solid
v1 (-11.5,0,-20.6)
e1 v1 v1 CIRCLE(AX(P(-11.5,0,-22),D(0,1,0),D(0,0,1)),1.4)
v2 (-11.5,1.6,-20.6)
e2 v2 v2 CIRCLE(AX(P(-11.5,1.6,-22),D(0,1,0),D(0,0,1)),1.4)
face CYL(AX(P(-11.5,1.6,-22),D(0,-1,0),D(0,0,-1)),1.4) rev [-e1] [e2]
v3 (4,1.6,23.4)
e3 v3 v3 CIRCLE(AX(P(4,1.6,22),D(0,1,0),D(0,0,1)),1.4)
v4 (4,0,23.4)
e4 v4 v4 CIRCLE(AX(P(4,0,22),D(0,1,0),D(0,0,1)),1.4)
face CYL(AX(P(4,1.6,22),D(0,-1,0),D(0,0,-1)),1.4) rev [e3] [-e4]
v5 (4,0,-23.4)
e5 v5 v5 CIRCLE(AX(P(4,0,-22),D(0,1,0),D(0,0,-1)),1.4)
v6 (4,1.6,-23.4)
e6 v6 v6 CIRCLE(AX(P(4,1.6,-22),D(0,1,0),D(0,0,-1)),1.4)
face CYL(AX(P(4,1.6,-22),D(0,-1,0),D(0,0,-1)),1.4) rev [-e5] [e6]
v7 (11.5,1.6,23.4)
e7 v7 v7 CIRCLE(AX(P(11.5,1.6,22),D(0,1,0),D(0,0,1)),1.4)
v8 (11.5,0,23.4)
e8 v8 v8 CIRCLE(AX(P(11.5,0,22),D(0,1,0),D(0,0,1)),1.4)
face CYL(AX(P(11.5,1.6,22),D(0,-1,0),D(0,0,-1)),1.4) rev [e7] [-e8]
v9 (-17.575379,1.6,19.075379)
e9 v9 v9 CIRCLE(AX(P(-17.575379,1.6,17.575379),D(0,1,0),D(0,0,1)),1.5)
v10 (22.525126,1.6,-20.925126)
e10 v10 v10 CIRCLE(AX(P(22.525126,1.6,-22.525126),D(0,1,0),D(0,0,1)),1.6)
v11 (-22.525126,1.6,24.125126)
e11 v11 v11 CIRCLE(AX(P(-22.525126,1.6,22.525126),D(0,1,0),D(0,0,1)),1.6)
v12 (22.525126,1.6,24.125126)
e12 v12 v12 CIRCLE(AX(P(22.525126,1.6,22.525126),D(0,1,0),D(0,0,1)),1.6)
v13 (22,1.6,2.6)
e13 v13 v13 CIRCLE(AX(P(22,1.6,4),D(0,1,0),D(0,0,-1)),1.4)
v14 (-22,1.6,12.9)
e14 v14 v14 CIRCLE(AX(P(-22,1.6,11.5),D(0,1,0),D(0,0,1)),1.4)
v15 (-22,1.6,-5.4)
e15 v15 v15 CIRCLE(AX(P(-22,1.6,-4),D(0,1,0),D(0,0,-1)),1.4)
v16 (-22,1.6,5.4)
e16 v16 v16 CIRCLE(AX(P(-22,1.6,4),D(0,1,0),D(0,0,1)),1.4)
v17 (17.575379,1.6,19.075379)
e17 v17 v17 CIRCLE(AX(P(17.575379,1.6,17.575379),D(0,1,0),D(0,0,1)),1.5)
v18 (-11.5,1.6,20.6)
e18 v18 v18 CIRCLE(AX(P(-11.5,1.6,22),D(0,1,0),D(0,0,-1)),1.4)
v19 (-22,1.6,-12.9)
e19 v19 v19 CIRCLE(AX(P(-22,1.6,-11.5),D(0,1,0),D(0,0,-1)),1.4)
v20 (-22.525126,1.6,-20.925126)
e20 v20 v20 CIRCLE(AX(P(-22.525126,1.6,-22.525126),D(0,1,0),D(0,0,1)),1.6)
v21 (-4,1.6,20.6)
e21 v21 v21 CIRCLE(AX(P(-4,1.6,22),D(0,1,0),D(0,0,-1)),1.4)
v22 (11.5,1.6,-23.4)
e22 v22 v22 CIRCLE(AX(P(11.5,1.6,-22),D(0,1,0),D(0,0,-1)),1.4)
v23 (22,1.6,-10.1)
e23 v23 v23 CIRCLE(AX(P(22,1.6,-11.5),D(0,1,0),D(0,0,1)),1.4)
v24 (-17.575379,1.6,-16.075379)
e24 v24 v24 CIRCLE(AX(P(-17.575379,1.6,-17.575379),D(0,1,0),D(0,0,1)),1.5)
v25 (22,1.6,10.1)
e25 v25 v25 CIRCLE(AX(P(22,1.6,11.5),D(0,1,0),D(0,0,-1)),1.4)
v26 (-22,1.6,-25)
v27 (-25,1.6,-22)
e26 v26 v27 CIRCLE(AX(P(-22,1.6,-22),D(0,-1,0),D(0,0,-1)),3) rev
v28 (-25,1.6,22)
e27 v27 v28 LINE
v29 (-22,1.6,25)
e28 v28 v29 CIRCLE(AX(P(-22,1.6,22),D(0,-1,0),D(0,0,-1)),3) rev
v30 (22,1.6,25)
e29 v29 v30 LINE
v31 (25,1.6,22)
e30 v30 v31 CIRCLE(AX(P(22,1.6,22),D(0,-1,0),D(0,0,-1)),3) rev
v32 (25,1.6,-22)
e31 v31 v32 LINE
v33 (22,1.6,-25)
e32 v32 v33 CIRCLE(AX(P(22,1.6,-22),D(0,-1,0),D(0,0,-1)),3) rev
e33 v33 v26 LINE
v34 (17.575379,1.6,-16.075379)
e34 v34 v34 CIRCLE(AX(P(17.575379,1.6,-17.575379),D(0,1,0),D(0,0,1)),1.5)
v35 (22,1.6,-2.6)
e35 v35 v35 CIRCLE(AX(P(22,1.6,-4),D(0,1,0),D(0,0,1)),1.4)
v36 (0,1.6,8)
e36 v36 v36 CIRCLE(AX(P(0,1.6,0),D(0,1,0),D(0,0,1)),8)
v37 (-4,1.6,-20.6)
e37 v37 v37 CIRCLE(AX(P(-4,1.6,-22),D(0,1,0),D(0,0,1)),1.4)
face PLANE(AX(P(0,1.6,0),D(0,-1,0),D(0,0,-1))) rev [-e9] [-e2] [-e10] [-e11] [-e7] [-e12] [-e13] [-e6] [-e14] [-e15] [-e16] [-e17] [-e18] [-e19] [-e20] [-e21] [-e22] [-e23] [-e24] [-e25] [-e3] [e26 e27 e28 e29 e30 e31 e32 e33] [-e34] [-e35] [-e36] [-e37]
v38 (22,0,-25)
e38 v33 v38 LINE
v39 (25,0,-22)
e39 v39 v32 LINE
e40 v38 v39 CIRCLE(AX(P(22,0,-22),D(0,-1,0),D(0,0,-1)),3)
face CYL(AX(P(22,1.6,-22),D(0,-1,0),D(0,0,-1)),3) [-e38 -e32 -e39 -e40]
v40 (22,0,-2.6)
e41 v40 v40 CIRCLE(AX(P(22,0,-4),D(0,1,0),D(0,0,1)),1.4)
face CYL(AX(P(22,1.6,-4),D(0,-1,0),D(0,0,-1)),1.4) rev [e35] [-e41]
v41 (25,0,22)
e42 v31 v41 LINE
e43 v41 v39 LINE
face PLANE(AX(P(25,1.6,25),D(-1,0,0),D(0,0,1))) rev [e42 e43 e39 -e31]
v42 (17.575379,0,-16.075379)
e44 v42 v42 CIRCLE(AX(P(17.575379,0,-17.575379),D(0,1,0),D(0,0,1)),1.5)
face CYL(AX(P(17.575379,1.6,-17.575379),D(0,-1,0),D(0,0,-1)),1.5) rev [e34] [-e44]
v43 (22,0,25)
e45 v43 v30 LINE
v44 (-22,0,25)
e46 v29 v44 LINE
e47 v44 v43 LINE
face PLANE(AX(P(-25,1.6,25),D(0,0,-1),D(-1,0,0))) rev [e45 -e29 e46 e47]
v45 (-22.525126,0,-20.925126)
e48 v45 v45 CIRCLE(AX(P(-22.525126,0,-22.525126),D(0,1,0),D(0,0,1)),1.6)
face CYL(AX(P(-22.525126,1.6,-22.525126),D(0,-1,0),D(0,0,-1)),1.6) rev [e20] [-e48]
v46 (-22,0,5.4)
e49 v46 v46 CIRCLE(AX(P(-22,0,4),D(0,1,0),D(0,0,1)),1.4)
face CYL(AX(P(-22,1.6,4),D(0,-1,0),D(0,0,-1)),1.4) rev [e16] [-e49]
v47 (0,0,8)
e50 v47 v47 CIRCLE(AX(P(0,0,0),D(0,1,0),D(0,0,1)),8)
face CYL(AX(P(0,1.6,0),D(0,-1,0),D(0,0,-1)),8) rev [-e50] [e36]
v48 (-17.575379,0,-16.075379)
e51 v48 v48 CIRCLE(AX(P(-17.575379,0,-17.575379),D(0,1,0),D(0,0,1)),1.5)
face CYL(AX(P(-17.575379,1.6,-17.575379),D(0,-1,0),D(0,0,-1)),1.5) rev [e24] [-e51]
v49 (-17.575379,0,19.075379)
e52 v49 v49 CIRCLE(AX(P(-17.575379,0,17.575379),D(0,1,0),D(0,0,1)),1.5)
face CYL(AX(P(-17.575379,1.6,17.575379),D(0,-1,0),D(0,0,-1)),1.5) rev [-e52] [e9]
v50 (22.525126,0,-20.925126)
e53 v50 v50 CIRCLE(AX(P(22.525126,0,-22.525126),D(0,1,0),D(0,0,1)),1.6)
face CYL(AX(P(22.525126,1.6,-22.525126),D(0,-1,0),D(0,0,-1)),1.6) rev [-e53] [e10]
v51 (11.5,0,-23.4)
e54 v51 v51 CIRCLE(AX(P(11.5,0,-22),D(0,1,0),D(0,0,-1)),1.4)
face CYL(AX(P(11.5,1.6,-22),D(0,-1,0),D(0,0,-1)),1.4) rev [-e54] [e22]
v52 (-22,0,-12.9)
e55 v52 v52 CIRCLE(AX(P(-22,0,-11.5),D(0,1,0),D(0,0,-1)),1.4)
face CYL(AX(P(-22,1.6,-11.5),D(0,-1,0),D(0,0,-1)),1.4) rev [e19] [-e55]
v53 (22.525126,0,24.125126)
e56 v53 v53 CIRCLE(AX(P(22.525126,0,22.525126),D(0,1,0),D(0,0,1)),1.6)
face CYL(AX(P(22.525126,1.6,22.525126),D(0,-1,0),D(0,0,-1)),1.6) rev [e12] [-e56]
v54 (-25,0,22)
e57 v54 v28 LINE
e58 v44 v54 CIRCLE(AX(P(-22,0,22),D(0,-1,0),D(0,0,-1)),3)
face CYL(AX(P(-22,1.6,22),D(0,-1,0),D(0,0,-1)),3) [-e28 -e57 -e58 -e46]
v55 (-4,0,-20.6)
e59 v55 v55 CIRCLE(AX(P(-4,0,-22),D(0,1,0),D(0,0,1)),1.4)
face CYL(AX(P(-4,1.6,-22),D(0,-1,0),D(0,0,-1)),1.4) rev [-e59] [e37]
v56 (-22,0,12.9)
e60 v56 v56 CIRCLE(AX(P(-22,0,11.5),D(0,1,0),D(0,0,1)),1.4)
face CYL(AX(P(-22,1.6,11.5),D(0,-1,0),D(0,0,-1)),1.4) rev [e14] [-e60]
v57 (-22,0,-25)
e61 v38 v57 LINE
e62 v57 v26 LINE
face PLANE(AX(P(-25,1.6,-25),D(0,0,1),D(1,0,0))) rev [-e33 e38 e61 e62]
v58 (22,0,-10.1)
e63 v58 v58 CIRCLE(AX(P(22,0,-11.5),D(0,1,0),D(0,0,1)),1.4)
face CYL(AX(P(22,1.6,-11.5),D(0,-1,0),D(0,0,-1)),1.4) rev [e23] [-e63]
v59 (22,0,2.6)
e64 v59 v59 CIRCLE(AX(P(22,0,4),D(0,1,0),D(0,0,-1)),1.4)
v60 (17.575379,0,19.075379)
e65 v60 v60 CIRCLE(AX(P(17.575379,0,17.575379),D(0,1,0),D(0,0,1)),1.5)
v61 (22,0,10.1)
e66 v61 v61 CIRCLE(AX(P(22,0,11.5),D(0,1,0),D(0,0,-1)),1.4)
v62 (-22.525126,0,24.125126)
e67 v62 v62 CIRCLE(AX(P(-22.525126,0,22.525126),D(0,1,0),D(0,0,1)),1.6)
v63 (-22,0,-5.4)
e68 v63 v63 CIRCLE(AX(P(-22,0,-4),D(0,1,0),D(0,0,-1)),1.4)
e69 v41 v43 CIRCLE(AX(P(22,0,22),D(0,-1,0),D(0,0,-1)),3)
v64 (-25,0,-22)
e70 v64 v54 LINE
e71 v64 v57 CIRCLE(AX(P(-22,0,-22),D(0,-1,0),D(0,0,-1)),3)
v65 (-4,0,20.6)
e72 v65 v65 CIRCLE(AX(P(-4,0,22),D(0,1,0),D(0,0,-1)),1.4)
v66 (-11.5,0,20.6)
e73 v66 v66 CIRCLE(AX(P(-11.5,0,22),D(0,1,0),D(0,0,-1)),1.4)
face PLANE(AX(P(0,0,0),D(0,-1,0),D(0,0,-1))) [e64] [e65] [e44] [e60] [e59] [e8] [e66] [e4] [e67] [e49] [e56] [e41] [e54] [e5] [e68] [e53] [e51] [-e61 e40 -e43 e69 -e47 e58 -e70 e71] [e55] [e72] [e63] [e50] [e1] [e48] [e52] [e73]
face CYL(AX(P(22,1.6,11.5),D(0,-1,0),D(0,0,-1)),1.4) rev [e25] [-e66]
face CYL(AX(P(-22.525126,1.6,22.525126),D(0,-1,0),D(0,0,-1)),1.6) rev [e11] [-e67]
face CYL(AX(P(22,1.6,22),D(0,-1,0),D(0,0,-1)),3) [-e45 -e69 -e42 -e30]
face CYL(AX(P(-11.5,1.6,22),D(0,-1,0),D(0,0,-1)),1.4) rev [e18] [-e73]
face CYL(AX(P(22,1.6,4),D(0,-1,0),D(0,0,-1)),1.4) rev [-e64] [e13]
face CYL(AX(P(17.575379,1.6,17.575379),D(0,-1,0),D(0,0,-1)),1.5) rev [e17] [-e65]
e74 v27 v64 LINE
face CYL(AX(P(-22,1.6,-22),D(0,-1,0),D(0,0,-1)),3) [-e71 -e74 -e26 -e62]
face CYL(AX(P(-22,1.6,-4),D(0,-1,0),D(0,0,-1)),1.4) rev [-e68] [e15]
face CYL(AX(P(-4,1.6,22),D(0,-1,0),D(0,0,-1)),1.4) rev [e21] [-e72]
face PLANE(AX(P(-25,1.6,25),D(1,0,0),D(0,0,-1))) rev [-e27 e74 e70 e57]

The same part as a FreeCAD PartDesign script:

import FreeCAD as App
import Part
import Sketcher
Q = App.Units.Quantity


def edges_at(feature, points):
    """Names of the edges that pass closest to the given points."""
    edges = feature.Shape.Edges
    near = lambda p: min(range(len(edges)), key=lambda i: edges[i].distToShape(Part.Vertex(*p))[0])
    return sorted({f"Edge{near(p) + 1}" for p in points})


def add_polygon(sketch, points):
    """Adds a closed chain of lines whose ends are joined by coincident constraints."""
    first, n = sketch.GeometryCount, len(points)
    for a, b in zip(points, points[1:] + points[:1]):
        sketch.addGeometry(Part.LineSegment(App.Vector(*a, 0), App.Vector(*b, 0)), False)
    for i in range(n):
        sketch.addConstraint(Sketcher.Constraint("Coincident", first + i, 2, first + (i + 1) % n, 1))

doc = App.newDocument("Part")
params = doc.addObject("Spreadsheet::Sheet", "Params")
for row, (alias, value) in enumerate([
    ("sketch1_diameter", "3 mm"),
    ("sketch1_diameter2", "16 mm"),
    ("sketch1_diameter3", "3.2 mm"),
    ("sketch1_diameter4", "2.8 mm"),
    ("sketch1_width", "50 mm"),
    ("pad1_length", "1.6 mm"),
    ("fillet_radius", "3 mm"),
], start=1):
    params.set(f"A{row}", alias)
    params.set(f"B{row}", "=" + value)
    params.setAlias(f"B{row}", alias)

body = doc.addObject("PartDesign::Body", "Body")

# Sketch on XZ plane
sketch1 = body.newObject("Sketcher::SketchObject", "Sketch")
sketch1.AttachmentSupport = (doc.getObject("XZ_Plane"), [""])
sketch1.MapMode = "FlatFace"
add_polygon(sketch1, [(-25, -25), (-25, 25), (25, 25), (25, -25)])  # lines 0-3
sketch1.addGeometry(Part.Circle(App.Vector(-22.5, 22.5, 0), App.Vector(0, 0, 1), 1.6), False)  # 4
sketch1.addGeometry(Part.Circle(App.Vector(-17.6, 17.6, 0), App.Vector(0, 0, 1), 1.5), False)  # 5
sketch1.addGeometry(Part.Circle(App.Vector(-11.5, 22, 0), App.Vector(0, 0, 1), 1.4), False)  # 6
sketch1.addGeometry(Part.Circle(App.Vector(-4, 22, 0), App.Vector(0, 0, 1), 1.4), False)  # 7
sketch1.addGeometry(Part.Circle(App.Vector(-22, 11.5, 0), App.Vector(0, 0, 1), 1.4), False)  # 8
sketch1.addGeometry(Part.Circle(App.Vector(-22, 4, 0), App.Vector(0, 0, 1), 1.4), False)  # 9
sketch1.addGeometry(Part.Circle(App.Vector(4, 22, 0), App.Vector(0, 0, 1), 1.4), False)  # 10
sketch1.addGeometry(Part.Circle(App.Vector(11.5, 22, 0), App.Vector(0, 0, 1), 1.4), False)  # 11
sketch1.addGeometry(Part.Circle(App.Vector(22.5, 22.5, 0), App.Vector(0, 0, 1), 1.6), False)  # 12
sketch1.addGeometry(Part.Circle(App.Vector(17.6, 17.6, 0), App.Vector(0, 0, 1), 1.5), False)  # 13
sketch1.addGeometry(Part.Circle(App.Vector(22, 11.5, 0), App.Vector(0, 0, 1), 1.4), False)  # 14
sketch1.addGeometry(Part.Circle(App.Vector(22, 4, 0), App.Vector(0, 0, 1), 1.4), False)  # 15
sketch1.addGeometry(Part.Circle(App.Vector(-22, -4, 0), App.Vector(0, 0, 1), 1.4), False)  # 16
sketch1.addGeometry(Part.Circle(App.Vector(-22, -11.5, 0), App.Vector(0, 0, 1), 1.4), False)  # 17
sketch1.addGeometry(Part.Circle(App.Vector(-17.6, -17.6, 0), App.Vector(0, 0, 1), 1.5), False)  # 18
sketch1.addGeometry(Part.Circle(App.Vector(-22.5, -22.5, 0), App.Vector(0, 0, 1), 1.6), False)  # 19
sketch1.addGeometry(Part.Circle(App.Vector(-11.5, -22, 0), App.Vector(0, 0, 1), 1.4), False)  # 20
sketch1.addGeometry(Part.Circle(App.Vector(-4, -22, 0), App.Vector(0, 0, 1), 1.4), False)  # 21
sketch1.addGeometry(Part.Circle(App.Vector(0, 0, 0), App.Vector(0, 0, 1), 8), False)  # 22
sketch1.addGeometry(Part.Circle(App.Vector(22, -4, 0), App.Vector(0, 0, 1), 1.4), False)  # 23
sketch1.addGeometry(Part.Circle(App.Vector(22, -11.5, 0), App.Vector(0, 0, 1), 1.4), False)  # 24
sketch1.addGeometry(Part.Circle(App.Vector(4, -22, 0), App.Vector(0, 0, 1), 1.4), False)  # 25
sketch1.addGeometry(Part.Circle(App.Vector(11.5, -22, 0), App.Vector(0, 0, 1), 1.4), False)  # 26
sketch1.addGeometry(Part.Circle(App.Vector(17.6, -17.6, 0), App.Vector(0, 0, 1), 1.5), False)  # 27
sketch1.addGeometry(Part.Circle(App.Vector(22.5, -22.5, 0), App.Vector(0, 0, 1), 1.6), False)  # 28
sketch1.addConstraint([
    Sketcher.Constraint("Vertical", 0),
    Sketcher.Constraint("Horizontal", 1),
    Sketcher.Constraint("Vertical", 2),
    Sketcher.Constraint("Horizontal", 3),
    Sketcher.Constraint("Coincident", 22, 3, -1, 1),
    Sketcher.Constraint("Equal", 6, 7),
    Sketcher.Constraint("Equal", 7, 8),
    Sketcher.Constraint("Equal", 8, 9),
    Sketcher.Constraint("Equal", 9, 10),
    Sketcher.Constraint("Equal", 10, 11),
    Sketcher.Constraint("Equal", 4, 12),
    Sketcher.Constraint("Equal", 5, 13),
    Sketcher.Constraint("Equal", 11, 14),
    Sketcher.Constraint("Equal", 14, 15),
    Sketcher.Constraint("Equal", 15, 16),
    Sketcher.Constraint("Equal", 16, 17),
    Sketcher.Constraint("Equal", 13, 18),
    Sketcher.Constraint("Equal", 12, 19),
    Sketcher.Constraint("Equal", 17, 20),
    Sketcher.Constraint("Equal", 20, 21),
    Sketcher.Constraint("Equal", 21, 23),
    Sketcher.Constraint("Equal", 23, 24),
    Sketcher.Constraint("Equal", 24, 25),
    Sketcher.Constraint("Equal", 25, 26),
    Sketcher.Constraint("Equal", 18, 27),
    Sketcher.Constraint("Equal", 19, 28),
    Sketcher.Constraint("Symmetric", 15, 3, 16, 3, -1, 1),
    Sketcher.Constraint("Symmetric", 14, 3, 17, 3, -1, 1),
    Sketcher.Constraint("Symmetric", 13, 3, 18, 3, -1, 1),
    Sketcher.Constraint("Symmetric", 12, 3, 19, 3, -1, 1),
    Sketcher.Constraint("Symmetric", 11, 3, 20, 3, -1, 1),
    Sketcher.Constraint("Symmetric", 10, 3, 21, 3, -1, 1),
    Sketcher.Constraint("Symmetric", 9, 3, 23, 3, -1, 1),
    Sketcher.Constraint("Symmetric", 8, 3, 24, 3, -1, 1),
    Sketcher.Constraint("Symmetric", 7, 3, 25, 3, -1, 1),
    Sketcher.Constraint("Symmetric", 6, 3, 26, 3, -1, 1),
    Sketcher.Constraint("Symmetric", 5, 3, 27, 3, -1, 1),
    Sketcher.Constraint("Symmetric", 4, 3, 28, 3, -1, 1),
    Sketcher.Constraint("Symmetric", 0, 2, 2, 2, -1, 1),
    Sketcher.Constraint("Symmetric", 7, 3, 10, 3, -2),
    Sketcher.Constraint("Symmetric", 6, 3, 11, 3, -2),
    Sketcher.Constraint("Symmetric", 4, 3, 12, 3, -2),
    Sketcher.Constraint("Symmetric", 5, 3, 13, 3, -2),
    Sketcher.Constraint("Symmetric", 8, 3, 14, 3, -2),
    Sketcher.Constraint("Symmetric", 9, 3, 15, 3, -2),
    Sketcher.Constraint("Horizontal", 6, 3, 7, 3),
    Sketcher.Constraint("Vertical", 8, 3, 9, 3),
    Sketcher.Constraint("Equal", 3, 0),
    Sketcher.Constraint("Diameter", 5, Q("3 mm")),
    Sketcher.Constraint("Diameter", 22, Q("16 mm")),
    Sketcher.Constraint("Diameter", 4, Q("3.2 mm")),
    Sketcher.Constraint("Diameter", 6, Q("2.8 mm")),
    Sketcher.Constraint("DistanceX", 1, 1, 1, 2, Q("50 mm")),
    Sketcher.Constraint("DistanceY", -1, 1, 6, 3, Q("22 mm")),
    Sketcher.Constraint("DistanceX", 7, 3, -1, 1, Q("4 mm")),
    Sketcher.Constraint("DistanceX", 8, 3, -1, 1, Q("22 mm")),
    Sketcher.Constraint("DistanceY", -1, 1, 9, 3, Q("4 mm")),
    Sketcher.Constraint("DistanceX", 6, 3, 11, 3, Q("23 mm")),
    Sketcher.Constraint("DistanceY", 17, 3, 8, 3, Q("23 mm")),
    Sketcher.Constraint("DistanceX", 5, 3, -1, 1, Q("17.575379 mm")),
    Sketcher.Constraint("DistanceY", -1, 1, 5, 3, Q("17.575379 mm")),
    Sketcher.Constraint("DistanceX", 4, 3, -1, 1, Q("22.525126 mm")),
    Sketcher.Constraint("DistanceY", -1, 1, 4, 3, Q("22.525126 mm")),
])
sketch1.setExpression("Constraints[52]", "Params.sketch1_diameter")
sketch1.setExpression("Constraints[53]", "Params.sketch1_diameter2")
sketch1.setExpression("Constraints[54]", "Params.sketch1_diameter3")
sketch1.setExpression("Constraints[55]", "Params.sketch1_diameter4")
sketch1.setExpression("Constraints[56]", "Params.sketch1_width")
pad1 = body.newObject("PartDesign::Pad", "Pad")
pad1.Profile = sketch1
pad1.setExpression("Length", "Params.pad1_length")
pad1.Reversed = True
doc.recompute()

fillet = body.newObject("PartDesign::Fillet", "Fillet")
fillet.Base = (pad1, edges_at(pad1, [
    (25, 0.8, 25),
    (-25, 0.8, 25),
    (-25, 0.8, -25),
    (25, 0.8, -25),
]))
fillet.setExpression("Radius", "Params.fillet_radius")

doc.recompute()
